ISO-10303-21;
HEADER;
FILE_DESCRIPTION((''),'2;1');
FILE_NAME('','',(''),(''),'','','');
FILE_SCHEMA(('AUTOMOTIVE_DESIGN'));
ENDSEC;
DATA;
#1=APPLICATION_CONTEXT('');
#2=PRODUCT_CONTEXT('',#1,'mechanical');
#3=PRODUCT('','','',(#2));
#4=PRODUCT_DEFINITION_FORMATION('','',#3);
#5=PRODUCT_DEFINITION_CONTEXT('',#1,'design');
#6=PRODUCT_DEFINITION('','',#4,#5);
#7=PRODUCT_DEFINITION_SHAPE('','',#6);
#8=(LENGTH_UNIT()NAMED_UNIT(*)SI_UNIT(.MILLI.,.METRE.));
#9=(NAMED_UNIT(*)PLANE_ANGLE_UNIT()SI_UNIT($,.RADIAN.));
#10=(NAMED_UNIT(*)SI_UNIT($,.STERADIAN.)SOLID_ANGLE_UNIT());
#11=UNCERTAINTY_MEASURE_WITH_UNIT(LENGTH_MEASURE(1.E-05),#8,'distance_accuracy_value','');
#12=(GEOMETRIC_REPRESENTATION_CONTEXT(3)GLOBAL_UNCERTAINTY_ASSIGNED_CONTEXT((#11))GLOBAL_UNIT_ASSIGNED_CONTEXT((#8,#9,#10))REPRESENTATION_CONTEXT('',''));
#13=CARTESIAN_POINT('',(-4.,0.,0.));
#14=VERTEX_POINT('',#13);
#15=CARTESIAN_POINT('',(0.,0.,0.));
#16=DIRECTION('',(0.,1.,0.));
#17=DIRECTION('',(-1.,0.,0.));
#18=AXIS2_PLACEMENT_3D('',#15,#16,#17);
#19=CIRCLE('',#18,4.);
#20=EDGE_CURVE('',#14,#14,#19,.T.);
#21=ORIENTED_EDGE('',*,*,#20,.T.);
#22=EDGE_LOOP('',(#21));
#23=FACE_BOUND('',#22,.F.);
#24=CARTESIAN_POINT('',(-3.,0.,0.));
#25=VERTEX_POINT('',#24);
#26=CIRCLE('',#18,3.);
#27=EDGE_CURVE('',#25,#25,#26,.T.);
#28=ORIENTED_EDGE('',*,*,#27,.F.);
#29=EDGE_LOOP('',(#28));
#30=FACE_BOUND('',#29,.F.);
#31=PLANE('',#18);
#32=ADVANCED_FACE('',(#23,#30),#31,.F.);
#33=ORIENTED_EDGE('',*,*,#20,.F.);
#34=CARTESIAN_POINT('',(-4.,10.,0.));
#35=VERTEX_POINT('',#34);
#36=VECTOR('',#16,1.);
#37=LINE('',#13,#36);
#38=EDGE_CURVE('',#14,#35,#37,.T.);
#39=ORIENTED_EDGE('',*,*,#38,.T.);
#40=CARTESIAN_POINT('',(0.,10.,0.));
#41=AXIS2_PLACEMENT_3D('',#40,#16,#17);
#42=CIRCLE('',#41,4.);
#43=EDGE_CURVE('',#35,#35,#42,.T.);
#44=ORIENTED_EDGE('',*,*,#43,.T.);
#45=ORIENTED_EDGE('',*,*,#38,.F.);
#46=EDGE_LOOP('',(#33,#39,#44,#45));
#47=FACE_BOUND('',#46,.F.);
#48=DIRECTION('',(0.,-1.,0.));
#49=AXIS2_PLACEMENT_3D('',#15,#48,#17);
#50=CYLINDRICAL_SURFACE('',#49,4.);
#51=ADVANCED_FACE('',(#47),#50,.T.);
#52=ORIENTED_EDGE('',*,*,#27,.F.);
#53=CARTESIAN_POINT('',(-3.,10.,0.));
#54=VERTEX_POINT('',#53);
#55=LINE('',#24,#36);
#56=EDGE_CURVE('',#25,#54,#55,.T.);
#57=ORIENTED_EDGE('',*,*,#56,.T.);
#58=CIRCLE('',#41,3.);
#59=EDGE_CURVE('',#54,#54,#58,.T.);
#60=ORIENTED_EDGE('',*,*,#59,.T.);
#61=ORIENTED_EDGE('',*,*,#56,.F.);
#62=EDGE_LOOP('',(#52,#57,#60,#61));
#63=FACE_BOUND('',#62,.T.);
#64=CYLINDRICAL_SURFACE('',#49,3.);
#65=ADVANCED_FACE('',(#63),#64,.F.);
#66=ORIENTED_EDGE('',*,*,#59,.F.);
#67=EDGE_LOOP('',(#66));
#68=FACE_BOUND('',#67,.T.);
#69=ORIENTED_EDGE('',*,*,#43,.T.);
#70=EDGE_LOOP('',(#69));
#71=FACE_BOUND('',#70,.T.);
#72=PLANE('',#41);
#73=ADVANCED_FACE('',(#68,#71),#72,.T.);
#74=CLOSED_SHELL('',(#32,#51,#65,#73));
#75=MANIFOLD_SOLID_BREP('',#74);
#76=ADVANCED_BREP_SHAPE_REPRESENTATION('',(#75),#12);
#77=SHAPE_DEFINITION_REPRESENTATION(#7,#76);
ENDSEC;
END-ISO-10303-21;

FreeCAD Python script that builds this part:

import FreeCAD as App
import Part
import Sketcher
from FreeCAD import Vector

doc = App.newDocument("Part")
params = doc.addObject("Spreadsheet::Sheet", "Params")
for row, (alias, value) in enumerate([
    ("sketch1_diameter", "8 mm"),
    ("sketch1_diameter2", "6 mm"),
    ("pad1_length", "10 mm"),
], start=1):
    params.set(f"A{row}", alias)
    params.set(f"B{row}", "=" + value)
    params.setAlias(f"B{row}", alias)

body = doc.addObject("PartDesign::Body", "Body")

sketch1 = body.newObject("Sketcher::SketchObject", "Sketch")
sketch1.AttachmentSupport = (doc.getObject("XZ_Plane"), [""])
sketch1.MapMode = "FlatFace"
sketch1.addGeometry([
    Part.Circle(Vector(0, 0, 0), Vector(0, 0, 1), 4),
    Part.Circle(Vector(0, 0, 0), Vector(0, 0, 1), 3),
], False)
sketch1.addConstraint([
    Sketcher.Constraint("Coincident", 0, 3, -1, 1),
    Sketcher.Constraint("Coincident", 1, 3, -1, 1),
    Sketcher.Constraint("Diameter", 0, 8.0),
    Sketcher.Constraint("Diameter", 1, 6.0),
])
sketch1.setExpression("Constraints[2]", "Params.sketch1_diameter")
sketch1.setExpression("Constraints[3]", "Params.sketch1_diameter2")
pad1 = body.newObject("PartDesign::Pad", "Pad")
pad1.Profile = sketch1
pad1.setExpression("Length", "Params.pad1_length")
pad1.Reversed = True

doc.recompute()
